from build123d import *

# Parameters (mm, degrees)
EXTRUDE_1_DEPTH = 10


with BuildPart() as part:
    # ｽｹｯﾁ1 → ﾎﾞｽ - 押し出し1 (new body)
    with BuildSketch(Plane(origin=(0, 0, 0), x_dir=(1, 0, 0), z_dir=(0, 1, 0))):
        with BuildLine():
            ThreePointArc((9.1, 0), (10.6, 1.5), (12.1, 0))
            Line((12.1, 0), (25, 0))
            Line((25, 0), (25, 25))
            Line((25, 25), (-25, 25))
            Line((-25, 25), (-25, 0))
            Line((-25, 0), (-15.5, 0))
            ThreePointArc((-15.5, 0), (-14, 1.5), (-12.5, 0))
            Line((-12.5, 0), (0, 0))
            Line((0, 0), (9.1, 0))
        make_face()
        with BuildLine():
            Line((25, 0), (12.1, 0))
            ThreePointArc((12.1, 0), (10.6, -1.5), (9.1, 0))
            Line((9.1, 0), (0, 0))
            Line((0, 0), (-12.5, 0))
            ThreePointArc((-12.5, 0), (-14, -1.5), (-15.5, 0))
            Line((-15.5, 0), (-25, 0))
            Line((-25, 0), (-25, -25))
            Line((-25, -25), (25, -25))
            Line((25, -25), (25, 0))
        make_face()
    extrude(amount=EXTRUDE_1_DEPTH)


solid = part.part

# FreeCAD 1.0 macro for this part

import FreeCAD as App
import Part
import Sketcher
Q = App.Units.Quantity

doc = App.newDocument("Part")
body = doc.addObject("PartDesign::Body", "Body")

sketch1 = body.newObject("Sketcher::SketchObject", "Sketch")
sketch1.AttachmentSupport = (doc.getObject("XZ_Plane"), [""])
sketch1.MapMode = "FlatFace"
sketch1.addGeometry([
    Part.LineSegment(App.Vector(25, -25, 0), App.Vector(-25, -25, 0)),
    Part.LineSegment(App.Vector(-25, -25, 0), App.Vector(-25, 25, 0)),
    Part.LineSegment(App.Vector(-25, 25, 0), App.Vector(25, 25, 0)),
    Part.LineSegment(App.Vector(25, 25, 0), App.Vector(25, -25, 0)),
    Part.Circle(App.Vector(10.6, 0, 0), App.Vector(0, 0, 1), 1.5),
    Part.Circle(App.Vector(-14, 0, 0), App.Vector(0, 0, 1), 1.5),
], False)
sketch1.addConstraint([
    Sketcher.Constraint("Coincident", 0, 2, 1, 1),
    Sketcher.Constraint("Coincident", 1, 2, 2, 1),
    Sketcher.Constraint("Coincident", 2, 2, 3, 1),
    Sketcher.Constraint("Coincident", 3, 2, 0, 1),
    Sketcher.Constraint("Horizontal", 0),
    Sketcher.Constraint("Vertical", 1),
    Sketcher.Constraint("Horizontal", 2),
    Sketcher.Constraint("Vertical", 3),
    Sketcher.Constraint("Equal", 4, 5),
    Sketcher.Constraint("Symmetric", 0, 2, 2, 2, -1, 1),
    Sketcher.Constraint("PointOnObject", 4, 3, -1),
    Sketcher.Constraint("PointOnObject", 5, 3, -1),
    Sketcher.Constraint("Equal", 2, 1),
    Sketcher.Constraint("Diameter", 4, Q("3 mm")),
    Sketcher.Constraint("DistanceX", 0, 2, 0, 1, Q("50 mm")),
    Sketcher.Constraint("DistanceX", 5, 3, -1, 1, Q("14 mm")),
    Sketcher.Constraint("DistanceX", -1, 1, 4, 3, Q("10.6 mm")),
])
pad1 = body.newObject("PartDesign::Pad", "Pad")
pad1.Profile = sketch1
pad1.Length = 10
pad1.Reversed = True

doc.recompute()
